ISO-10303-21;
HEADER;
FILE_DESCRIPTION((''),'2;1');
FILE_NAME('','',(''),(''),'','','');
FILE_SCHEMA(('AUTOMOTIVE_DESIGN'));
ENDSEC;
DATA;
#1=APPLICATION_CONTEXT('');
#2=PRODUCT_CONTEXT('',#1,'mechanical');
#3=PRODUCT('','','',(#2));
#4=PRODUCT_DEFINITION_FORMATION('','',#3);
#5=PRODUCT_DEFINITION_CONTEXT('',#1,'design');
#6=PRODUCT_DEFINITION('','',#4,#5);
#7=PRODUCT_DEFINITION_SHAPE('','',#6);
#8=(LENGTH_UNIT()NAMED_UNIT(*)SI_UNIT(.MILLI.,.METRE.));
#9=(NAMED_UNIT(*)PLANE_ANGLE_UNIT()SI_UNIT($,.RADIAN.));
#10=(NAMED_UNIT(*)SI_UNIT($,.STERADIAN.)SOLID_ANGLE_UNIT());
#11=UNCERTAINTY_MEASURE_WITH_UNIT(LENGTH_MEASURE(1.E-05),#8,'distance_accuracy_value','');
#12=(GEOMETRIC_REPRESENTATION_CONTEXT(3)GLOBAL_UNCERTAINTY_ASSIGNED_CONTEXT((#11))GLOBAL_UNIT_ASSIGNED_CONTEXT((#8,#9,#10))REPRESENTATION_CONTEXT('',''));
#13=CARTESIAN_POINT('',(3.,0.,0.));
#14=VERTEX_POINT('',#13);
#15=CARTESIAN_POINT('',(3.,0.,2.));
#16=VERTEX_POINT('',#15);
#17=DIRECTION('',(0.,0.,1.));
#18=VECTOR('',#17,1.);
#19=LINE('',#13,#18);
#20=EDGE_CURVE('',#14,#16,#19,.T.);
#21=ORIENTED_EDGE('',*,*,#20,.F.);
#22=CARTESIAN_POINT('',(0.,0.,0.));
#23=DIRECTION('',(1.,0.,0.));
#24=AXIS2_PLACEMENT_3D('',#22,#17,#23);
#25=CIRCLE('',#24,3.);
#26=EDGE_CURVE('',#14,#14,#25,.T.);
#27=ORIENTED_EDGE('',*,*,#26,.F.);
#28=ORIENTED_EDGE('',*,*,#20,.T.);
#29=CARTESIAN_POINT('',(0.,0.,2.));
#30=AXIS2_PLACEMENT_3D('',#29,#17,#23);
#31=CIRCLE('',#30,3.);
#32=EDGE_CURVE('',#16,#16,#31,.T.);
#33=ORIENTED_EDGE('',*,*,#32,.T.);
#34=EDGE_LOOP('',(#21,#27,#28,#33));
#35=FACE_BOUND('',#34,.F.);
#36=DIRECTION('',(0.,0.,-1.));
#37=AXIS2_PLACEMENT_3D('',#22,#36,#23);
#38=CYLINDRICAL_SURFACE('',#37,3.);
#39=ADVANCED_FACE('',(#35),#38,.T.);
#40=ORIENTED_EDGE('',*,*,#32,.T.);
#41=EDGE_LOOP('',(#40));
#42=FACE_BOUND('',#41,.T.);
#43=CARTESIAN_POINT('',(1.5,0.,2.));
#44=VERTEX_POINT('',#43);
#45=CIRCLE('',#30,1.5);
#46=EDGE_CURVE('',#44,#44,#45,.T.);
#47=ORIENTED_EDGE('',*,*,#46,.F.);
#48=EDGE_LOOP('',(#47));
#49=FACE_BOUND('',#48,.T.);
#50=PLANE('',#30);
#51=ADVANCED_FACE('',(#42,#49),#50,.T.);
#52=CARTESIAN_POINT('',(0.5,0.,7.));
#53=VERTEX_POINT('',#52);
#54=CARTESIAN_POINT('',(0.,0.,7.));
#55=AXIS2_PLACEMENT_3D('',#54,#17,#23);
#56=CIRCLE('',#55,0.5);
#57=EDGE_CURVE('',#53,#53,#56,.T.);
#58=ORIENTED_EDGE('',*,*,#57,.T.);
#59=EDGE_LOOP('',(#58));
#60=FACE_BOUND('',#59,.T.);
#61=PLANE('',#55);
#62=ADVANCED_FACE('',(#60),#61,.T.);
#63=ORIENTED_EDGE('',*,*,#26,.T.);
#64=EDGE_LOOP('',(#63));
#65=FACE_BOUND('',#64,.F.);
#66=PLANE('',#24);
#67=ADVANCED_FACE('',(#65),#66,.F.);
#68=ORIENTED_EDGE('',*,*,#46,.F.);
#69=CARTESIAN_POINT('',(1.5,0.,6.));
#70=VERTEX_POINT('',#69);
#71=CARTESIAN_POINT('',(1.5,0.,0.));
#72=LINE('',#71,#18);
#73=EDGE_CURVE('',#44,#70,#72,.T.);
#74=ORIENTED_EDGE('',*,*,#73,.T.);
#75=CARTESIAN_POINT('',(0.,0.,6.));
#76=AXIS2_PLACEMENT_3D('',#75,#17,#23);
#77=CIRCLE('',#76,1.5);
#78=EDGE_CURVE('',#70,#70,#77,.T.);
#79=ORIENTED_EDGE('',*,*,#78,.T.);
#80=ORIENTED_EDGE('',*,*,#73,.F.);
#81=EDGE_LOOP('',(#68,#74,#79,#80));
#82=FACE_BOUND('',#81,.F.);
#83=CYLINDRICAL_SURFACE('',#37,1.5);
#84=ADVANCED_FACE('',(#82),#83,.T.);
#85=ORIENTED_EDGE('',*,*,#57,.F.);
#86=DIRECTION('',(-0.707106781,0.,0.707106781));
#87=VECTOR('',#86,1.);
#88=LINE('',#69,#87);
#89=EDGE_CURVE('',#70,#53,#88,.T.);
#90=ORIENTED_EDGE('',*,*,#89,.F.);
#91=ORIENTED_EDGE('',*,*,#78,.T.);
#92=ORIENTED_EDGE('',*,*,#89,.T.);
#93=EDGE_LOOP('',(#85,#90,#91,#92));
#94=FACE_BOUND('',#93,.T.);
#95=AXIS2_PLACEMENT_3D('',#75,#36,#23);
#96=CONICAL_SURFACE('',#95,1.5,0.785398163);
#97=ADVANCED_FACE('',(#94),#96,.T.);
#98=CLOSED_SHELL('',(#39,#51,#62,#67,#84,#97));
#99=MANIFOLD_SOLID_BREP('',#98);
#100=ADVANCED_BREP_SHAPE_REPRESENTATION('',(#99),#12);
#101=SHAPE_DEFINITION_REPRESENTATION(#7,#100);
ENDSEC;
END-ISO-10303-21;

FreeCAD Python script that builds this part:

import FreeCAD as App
import Part
import Sketcher


def edges_at(feature, points):
    """Names of the edges that pass closest to the given points."""
    edges = feature.Shape.Edges
    near = lambda p: min(range(len(edges)), key=lambda i: edges[i].distToShape(Part.Vertex(*p))[0])
    return sorted({f"Edge{near(p) + 1}" for p in points})

doc = App.newDocument("Part")
body = doc.addObject("PartDesign::Body", "Body")

sketch1 = body.newObject("Sketcher::SketchObject", "Sketch")
sketch1.AttachmentSupport = (doc.getObject("XY_Plane"), [""])
sketch1.MapMode = "FlatFace"
sketch1.addGeometry([
    Part.Circle(App.Vector(0, 0, 0), App.Vector(0, 0, 1), 3),
    Part.Circle(App.Vector(0, 0, 0), App.Vector(0, 0, 1), 1.5),
], False)
sketch1.addConstraint([
    Sketcher.Constraint("Coincident", 0, 3, -1, 1),
    Sketcher.Constraint("Coincident", 1, 3, -1, 1),
    Sketcher.Constraint("Diameter", 0, 6.0),
    Sketcher.Constraint("Diameter", 1, 3.0),
])
pad1 = body.newObject("PartDesign::Pad", "Pad")
pad1.Profile = sketch1
pad1.Length = 2

sketch2 = body.newObject("Sketcher::SketchObject", "Sketch001")
sketch2.AttachmentSupport = (doc.getObject("XY_Plane"), [""])
sketch2.MapMode = "FlatFace"
sketch2.addGeometry(Part.Circle(App.Vector(0, 0, 0), App.Vector(0, 0, 1), 1.5), False)
sketch2.addConstraint([
    Sketcher.Constraint("Coincident", 0, 3, -1, 1),
    Sketcher.Constraint("Diameter", 0, 3.0),
])
pad2 = body.newObject("PartDesign::Pad", "Pad001")
pad2.Profile = sketch2
pad2.Length = 7
doc.recompute()

chamfer = body.newObject("PartDesign::Chamfer", "Chamfer")
chamfer.Base = (pad2, edges_at(pad2, [(-1.5, 0, 7)]))
chamfer.Size = 1

doc.recompute()
